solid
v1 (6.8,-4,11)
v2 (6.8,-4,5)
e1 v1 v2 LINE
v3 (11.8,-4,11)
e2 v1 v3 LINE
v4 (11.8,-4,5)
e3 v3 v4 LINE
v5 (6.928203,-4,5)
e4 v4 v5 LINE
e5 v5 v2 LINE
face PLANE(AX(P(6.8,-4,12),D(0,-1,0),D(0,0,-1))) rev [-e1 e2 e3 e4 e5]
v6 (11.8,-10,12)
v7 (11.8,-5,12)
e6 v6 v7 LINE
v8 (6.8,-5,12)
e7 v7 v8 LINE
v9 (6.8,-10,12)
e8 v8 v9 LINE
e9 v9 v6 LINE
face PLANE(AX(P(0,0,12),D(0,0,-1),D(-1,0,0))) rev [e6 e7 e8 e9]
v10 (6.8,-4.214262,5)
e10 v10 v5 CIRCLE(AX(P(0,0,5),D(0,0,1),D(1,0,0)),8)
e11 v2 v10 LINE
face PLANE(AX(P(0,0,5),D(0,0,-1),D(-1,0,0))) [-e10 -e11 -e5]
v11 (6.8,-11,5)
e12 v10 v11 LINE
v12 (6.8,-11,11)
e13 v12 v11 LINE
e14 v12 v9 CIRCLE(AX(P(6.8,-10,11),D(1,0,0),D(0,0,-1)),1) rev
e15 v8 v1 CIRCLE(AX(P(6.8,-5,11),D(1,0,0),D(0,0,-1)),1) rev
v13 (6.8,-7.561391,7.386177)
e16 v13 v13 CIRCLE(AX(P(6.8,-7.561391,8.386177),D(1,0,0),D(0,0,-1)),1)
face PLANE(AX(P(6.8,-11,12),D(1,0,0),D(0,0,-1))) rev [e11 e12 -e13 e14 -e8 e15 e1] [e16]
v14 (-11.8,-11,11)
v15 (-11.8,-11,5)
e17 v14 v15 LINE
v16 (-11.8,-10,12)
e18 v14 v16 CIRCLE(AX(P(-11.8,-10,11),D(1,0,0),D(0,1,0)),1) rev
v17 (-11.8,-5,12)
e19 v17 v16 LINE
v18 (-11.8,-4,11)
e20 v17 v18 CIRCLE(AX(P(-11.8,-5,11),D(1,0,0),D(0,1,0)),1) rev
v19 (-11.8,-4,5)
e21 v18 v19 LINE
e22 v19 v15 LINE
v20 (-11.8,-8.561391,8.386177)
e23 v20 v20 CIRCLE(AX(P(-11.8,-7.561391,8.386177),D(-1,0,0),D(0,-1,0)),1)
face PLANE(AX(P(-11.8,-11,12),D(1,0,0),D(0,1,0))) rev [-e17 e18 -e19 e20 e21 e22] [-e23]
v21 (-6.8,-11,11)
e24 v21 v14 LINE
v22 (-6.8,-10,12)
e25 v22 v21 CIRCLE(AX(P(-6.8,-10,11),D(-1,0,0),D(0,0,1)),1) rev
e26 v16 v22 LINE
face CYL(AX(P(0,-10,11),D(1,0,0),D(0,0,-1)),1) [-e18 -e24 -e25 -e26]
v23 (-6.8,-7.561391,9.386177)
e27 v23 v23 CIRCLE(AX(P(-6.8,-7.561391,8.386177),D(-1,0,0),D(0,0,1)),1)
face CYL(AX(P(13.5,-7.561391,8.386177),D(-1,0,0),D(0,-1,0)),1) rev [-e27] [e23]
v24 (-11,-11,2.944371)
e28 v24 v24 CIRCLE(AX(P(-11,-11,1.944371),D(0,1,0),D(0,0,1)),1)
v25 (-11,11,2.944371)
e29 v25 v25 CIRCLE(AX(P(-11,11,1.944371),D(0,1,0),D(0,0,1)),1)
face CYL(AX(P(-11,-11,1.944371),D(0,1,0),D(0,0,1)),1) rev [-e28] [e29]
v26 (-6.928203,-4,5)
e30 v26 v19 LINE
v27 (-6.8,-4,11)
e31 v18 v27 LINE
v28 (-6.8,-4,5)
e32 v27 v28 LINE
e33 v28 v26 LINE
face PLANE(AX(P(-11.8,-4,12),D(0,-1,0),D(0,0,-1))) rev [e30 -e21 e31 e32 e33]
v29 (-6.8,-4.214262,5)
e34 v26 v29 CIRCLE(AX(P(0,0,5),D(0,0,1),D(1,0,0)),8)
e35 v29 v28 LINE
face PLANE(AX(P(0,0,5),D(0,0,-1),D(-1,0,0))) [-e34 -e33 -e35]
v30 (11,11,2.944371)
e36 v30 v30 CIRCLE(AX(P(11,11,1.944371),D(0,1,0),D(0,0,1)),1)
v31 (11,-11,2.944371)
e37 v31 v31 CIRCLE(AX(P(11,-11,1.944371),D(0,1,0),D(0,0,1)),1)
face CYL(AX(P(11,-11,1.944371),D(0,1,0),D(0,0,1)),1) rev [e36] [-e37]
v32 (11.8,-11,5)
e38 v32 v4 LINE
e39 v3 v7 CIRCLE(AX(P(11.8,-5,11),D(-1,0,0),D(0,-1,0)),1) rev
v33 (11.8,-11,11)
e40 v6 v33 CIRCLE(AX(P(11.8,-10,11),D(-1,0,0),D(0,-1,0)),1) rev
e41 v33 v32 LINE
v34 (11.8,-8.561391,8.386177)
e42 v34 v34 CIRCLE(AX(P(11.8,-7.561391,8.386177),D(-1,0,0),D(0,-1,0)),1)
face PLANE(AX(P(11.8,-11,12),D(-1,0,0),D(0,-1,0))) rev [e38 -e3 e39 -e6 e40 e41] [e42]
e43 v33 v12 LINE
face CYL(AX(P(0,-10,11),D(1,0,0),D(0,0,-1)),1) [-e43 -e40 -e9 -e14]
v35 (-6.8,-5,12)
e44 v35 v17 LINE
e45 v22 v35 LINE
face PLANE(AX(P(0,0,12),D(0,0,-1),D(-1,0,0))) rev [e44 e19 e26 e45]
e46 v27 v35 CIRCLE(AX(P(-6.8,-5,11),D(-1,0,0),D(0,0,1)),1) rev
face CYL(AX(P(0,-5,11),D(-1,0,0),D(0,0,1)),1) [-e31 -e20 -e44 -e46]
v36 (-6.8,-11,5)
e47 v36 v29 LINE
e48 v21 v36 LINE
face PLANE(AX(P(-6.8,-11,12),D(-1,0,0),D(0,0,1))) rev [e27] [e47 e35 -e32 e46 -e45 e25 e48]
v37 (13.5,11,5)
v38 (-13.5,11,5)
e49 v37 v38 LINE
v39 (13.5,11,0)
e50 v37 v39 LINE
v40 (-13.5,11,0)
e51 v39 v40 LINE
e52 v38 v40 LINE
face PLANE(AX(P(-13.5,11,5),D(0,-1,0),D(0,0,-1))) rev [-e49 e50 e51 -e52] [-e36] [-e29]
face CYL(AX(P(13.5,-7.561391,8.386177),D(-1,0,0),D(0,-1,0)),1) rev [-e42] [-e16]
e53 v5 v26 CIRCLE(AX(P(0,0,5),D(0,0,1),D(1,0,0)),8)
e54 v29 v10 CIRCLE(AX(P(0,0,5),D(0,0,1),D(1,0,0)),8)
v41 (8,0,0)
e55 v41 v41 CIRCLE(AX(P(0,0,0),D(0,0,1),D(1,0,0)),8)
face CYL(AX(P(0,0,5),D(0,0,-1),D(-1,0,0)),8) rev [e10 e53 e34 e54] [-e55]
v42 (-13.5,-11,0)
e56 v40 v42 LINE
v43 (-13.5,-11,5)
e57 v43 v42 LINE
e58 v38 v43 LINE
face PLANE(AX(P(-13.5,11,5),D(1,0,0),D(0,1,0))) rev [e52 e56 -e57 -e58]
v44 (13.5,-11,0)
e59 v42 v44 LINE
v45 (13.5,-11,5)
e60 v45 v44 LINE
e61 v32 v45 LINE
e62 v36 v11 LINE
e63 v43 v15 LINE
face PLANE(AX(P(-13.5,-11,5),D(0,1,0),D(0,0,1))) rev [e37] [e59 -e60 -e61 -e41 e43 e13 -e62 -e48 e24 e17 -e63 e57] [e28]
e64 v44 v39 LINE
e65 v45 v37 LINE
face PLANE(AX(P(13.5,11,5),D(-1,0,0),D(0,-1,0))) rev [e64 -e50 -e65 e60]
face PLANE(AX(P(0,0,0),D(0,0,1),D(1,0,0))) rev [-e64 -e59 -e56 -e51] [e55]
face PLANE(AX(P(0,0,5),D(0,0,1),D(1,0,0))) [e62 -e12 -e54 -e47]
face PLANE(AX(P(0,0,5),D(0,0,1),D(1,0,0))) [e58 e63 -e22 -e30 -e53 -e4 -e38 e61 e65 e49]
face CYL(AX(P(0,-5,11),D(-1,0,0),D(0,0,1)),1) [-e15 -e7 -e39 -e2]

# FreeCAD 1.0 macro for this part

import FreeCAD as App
import Part
import Sketcher
from FreeCAD import Vector
Q = App.Units.Quantity


def edges_at(feature, points):
    """Names of the edges that pass closest to the given points."""
    edges = feature.Shape.Edges
    near = lambda p: min(range(len(edges)), key=lambda i: edges[i].distToShape(Part.Vertex(*p))[0])
    return sorted({f"Edge{near(p) + 1}" for p in points})

doc = App.newDocument("Part")
body = doc.addObject("PartDesign::Body", "Body")

# Sketch on XY plane
sketch1 = doc.addObject("Sketcher::SketchObject", "Sketch")
body.addObject(sketch1)
sketch1.AttachmentSupport = (doc.XY_Plane, [""])
sketch1.MapMode = "FlatFace"
sketch1.addGeometry([
    Part.LineSegment(Vector(-14, 11, 0), Vector(-14, -11, 0)),  # 0
    Part.LineSegment(Vector(-14, -11, 0), Vector(14, -11, 0)),  # 1
    Part.LineSegment(Vector(14, -11, 0), Vector(14, 11, 0)),  # 2
    Part.LineSegment(Vector(14, 11, 0), Vector(-14, 11, 0)),  # 3
    Part.Circle(Vector(0, 0, 0), Vector(0, 0, 1), 8),  # 4
], False)
sketch1.addConstraint([
    Sketcher.Constraint("Coincident", 0, 2, 1, 1),
    Sketcher.Constraint("Coincident", 1, 2, 2, 1),
    Sketcher.Constraint("Coincident", 2, 2, 3, 1),
    Sketcher.Constraint("Coincident", 3, 2, 0, 1),
    Sketcher.Constraint("Vertical", 0),
    Sketcher.Constraint("Horizontal", 1),
    Sketcher.Constraint("Vertical", 2),
    Sketcher.Constraint("Horizontal", 3),
    Sketcher.Constraint("Coincident", 4, 3, -1, 1),
    Sketcher.Constraint("Symmetric", 0, 2, 2, 2, -1, 1),
    Sketcher.Constraint("Diameter", 4, Q("16 mm")),
    Sketcher.Constraint("DistanceX", 1, 1, 1, 2, Q("27 mm")),
    Sketcher.Constraint("DistanceY", 0, 2, 0, 1, Q("22 mm")),
])
pad1 = doc.addObject("PartDesign::Pad", "Pad")
body.addObject(pad1)
pad1.Profile = sketch1
pad1.Length = 5

# Sketch on XY plane
sketch2 = doc.addObject("Sketcher::SketchObject", "Sketch001")
body.addObject(sketch2)
sketch2.AttachmentSupport = (doc.XY_Plane, [""])
sketch2.MapMode = "FlatFace"
sketch2.AttachmentOffset = App.Placement(Vector(0, 0, 5), App.Rotation())
sketch2.addGeometry([
    Part.LineSegment(Vector(-12, -4, 0), Vector(-12, -11, 0)),  # 0
    Part.LineSegment(Vector(-12, -11, 0), Vector(-7, -11, 0)),  # 1
    Part.LineSegment(Vector(-7, -11, 0), Vector(-7, -4, 0)),  # 2
    Part.LineSegment(Vector(-7, -4, 0), Vector(-12, -4, 0)),  # 3
    Part.LineSegment(Vector(7, -4, 0), Vector(7, -11, 0)),  # 4
    Part.LineSegment(Vector(7, -11, 0), Vector(12, -11, 0)),  # 5
    Part.LineSegment(Vector(12, -11, 0), Vector(12, -4, 0)),  # 6
    Part.LineSegment(Vector(12, -4, 0), Vector(7, -4, 0)),  # 7
], False)
sketch2.addConstraint([
    Sketcher.Constraint("Coincident", 0, 2, 1, 1),
    Sketcher.Constraint("Coincident", 1, 2, 2, 1),
    Sketcher.Constraint("Coincident", 2, 2, 3, 1),
    Sketcher.Constraint("Coincident", 3, 2, 0, 1),
    Sketcher.Constraint("Coincident", 4, 2, 5, 1),
    Sketcher.Constraint("Coincident", 5, 2, 6, 1),
    Sketcher.Constraint("Coincident", 6, 2, 7, 1),
    Sketcher.Constraint("Coincident", 7, 2, 4, 1),
    Sketcher.Constraint("Vertical", 0),
    Sketcher.Constraint("Horizontal", 1),
    Sketcher.Constraint("Vertical", 2),
    Sketcher.Constraint("Horizontal", 3),
    Sketcher.Constraint("Vertical", 4),
    Sketcher.Constraint("Horizontal", 5),
    Sketcher.Constraint("Vertical", 6),
    Sketcher.Constraint("Horizontal", 7),
    Sketcher.Constraint("Symmetric", 1, 2, 4, 2, -2),
    Sketcher.Constraint("Symmetric", 3, 2, 6, 2, -2),
    Sketcher.Constraint("DistanceX", 1, 1, 1, 2, Q("5 mm")),
    Sketcher.Constraint("DistanceY", 0, 2, 0, 1, Q("7 mm")),
    Sketcher.Constraint("DistanceY", 0, 2, -1, 1, Q("11 mm")),
    Sketcher.Constraint("DistanceX", 0, 2, -1, 1, Q("11.8 mm")),
])
pad2 = doc.addObject("PartDesign::Pad", "Pad001")
body.addObject(pad2)
pad2.Profile = sketch2
pad2.Length = 7

# Sketch on YZ plane
sketch3 = doc.addObject("Sketcher::SketchObject", "Sketch002")
body.addObject(sketch3)
sketch3.AttachmentSupport = (doc.YZ_Plane, [""])
sketch3.MapMode = "FlatFace"
sketch3.AttachmentOffset = App.Placement(Vector(0, 0, -11.8), App.Rotation())
sketch3.addGeometry(Part.Circle(Vector(-7.6, 8.4, 0), Vector(0, 0, 1), 1), False)
sketch3.addConstraint([
    Sketcher.Constraint("Diameter", 0, Q("2 mm")),
    Sketcher.Constraint("DistanceX", 0, 3, -1, 1, Q("7.561391 mm")),
    Sketcher.Constraint("DistanceY", -1, 1, 0, 3, Q("8.386177 mm")),
])
pocket1 = doc.addObject("PartDesign::Pocket", "Pocket")
body.addObject(pocket1)
pocket1.Profile = sketch3
pocket1.Type = "ThroughAll"
pocket1.Reversed = True
doc.recompute()

fillet = doc.addObject("PartDesign::Fillet", "Fillet")
body.addObject(fillet)
fillet.Base = (pocket1, edges_at(pocket1, [
    (-9.3, -11, 12),
    (-9.3, -4, 12),
    (9.3, -11, 12),
    (9.3, -4, 12),
]))
fillet.Radius = 1

# Sketch on XZ plane
sketch4 = doc.addObject("Sketcher::SketchObject", "Sketch003")
body.addObject(sketch4)
sketch4.AttachmentSupport = (doc.XZ_Plane, [""])
sketch4.MapMode = "FlatFace"
sketch4.AttachmentOffset = App.Placement(Vector(0, 0, -11), App.Rotation())
sketch4.addGeometry([
    Part.Circle(Vector(-11, 1.9, 0), Vector(0, 0, 1), 1),
    Part.Circle(Vector(11, 1.9, 0), Vector(0, 0, 1), 1),
], False)
sketch4.addConstraint([
    Sketcher.Constraint("Equal", 0, 1),
    Sketcher.Constraint("Symmetric", 0, 3, 1, 3, -2),
    Sketcher.Constraint("Diameter", 0, Q("2 mm")),
    Sketcher.Constraint("DistanceX", 0, 3, -1, 1, Q("11 mm")),
    Sketcher.Constraint("DistanceY", -1, 1, 0, 3, Q("1.944371 mm")),
])
pocket2 = doc.addObject("PartDesign::Pocket", "Pocket001")
body.addObject(pocket2)
pocket2.Profile = sketch4
pocket2.Type = "ThroughAll"
pocket2.Reversed = True

doc.recompute()
